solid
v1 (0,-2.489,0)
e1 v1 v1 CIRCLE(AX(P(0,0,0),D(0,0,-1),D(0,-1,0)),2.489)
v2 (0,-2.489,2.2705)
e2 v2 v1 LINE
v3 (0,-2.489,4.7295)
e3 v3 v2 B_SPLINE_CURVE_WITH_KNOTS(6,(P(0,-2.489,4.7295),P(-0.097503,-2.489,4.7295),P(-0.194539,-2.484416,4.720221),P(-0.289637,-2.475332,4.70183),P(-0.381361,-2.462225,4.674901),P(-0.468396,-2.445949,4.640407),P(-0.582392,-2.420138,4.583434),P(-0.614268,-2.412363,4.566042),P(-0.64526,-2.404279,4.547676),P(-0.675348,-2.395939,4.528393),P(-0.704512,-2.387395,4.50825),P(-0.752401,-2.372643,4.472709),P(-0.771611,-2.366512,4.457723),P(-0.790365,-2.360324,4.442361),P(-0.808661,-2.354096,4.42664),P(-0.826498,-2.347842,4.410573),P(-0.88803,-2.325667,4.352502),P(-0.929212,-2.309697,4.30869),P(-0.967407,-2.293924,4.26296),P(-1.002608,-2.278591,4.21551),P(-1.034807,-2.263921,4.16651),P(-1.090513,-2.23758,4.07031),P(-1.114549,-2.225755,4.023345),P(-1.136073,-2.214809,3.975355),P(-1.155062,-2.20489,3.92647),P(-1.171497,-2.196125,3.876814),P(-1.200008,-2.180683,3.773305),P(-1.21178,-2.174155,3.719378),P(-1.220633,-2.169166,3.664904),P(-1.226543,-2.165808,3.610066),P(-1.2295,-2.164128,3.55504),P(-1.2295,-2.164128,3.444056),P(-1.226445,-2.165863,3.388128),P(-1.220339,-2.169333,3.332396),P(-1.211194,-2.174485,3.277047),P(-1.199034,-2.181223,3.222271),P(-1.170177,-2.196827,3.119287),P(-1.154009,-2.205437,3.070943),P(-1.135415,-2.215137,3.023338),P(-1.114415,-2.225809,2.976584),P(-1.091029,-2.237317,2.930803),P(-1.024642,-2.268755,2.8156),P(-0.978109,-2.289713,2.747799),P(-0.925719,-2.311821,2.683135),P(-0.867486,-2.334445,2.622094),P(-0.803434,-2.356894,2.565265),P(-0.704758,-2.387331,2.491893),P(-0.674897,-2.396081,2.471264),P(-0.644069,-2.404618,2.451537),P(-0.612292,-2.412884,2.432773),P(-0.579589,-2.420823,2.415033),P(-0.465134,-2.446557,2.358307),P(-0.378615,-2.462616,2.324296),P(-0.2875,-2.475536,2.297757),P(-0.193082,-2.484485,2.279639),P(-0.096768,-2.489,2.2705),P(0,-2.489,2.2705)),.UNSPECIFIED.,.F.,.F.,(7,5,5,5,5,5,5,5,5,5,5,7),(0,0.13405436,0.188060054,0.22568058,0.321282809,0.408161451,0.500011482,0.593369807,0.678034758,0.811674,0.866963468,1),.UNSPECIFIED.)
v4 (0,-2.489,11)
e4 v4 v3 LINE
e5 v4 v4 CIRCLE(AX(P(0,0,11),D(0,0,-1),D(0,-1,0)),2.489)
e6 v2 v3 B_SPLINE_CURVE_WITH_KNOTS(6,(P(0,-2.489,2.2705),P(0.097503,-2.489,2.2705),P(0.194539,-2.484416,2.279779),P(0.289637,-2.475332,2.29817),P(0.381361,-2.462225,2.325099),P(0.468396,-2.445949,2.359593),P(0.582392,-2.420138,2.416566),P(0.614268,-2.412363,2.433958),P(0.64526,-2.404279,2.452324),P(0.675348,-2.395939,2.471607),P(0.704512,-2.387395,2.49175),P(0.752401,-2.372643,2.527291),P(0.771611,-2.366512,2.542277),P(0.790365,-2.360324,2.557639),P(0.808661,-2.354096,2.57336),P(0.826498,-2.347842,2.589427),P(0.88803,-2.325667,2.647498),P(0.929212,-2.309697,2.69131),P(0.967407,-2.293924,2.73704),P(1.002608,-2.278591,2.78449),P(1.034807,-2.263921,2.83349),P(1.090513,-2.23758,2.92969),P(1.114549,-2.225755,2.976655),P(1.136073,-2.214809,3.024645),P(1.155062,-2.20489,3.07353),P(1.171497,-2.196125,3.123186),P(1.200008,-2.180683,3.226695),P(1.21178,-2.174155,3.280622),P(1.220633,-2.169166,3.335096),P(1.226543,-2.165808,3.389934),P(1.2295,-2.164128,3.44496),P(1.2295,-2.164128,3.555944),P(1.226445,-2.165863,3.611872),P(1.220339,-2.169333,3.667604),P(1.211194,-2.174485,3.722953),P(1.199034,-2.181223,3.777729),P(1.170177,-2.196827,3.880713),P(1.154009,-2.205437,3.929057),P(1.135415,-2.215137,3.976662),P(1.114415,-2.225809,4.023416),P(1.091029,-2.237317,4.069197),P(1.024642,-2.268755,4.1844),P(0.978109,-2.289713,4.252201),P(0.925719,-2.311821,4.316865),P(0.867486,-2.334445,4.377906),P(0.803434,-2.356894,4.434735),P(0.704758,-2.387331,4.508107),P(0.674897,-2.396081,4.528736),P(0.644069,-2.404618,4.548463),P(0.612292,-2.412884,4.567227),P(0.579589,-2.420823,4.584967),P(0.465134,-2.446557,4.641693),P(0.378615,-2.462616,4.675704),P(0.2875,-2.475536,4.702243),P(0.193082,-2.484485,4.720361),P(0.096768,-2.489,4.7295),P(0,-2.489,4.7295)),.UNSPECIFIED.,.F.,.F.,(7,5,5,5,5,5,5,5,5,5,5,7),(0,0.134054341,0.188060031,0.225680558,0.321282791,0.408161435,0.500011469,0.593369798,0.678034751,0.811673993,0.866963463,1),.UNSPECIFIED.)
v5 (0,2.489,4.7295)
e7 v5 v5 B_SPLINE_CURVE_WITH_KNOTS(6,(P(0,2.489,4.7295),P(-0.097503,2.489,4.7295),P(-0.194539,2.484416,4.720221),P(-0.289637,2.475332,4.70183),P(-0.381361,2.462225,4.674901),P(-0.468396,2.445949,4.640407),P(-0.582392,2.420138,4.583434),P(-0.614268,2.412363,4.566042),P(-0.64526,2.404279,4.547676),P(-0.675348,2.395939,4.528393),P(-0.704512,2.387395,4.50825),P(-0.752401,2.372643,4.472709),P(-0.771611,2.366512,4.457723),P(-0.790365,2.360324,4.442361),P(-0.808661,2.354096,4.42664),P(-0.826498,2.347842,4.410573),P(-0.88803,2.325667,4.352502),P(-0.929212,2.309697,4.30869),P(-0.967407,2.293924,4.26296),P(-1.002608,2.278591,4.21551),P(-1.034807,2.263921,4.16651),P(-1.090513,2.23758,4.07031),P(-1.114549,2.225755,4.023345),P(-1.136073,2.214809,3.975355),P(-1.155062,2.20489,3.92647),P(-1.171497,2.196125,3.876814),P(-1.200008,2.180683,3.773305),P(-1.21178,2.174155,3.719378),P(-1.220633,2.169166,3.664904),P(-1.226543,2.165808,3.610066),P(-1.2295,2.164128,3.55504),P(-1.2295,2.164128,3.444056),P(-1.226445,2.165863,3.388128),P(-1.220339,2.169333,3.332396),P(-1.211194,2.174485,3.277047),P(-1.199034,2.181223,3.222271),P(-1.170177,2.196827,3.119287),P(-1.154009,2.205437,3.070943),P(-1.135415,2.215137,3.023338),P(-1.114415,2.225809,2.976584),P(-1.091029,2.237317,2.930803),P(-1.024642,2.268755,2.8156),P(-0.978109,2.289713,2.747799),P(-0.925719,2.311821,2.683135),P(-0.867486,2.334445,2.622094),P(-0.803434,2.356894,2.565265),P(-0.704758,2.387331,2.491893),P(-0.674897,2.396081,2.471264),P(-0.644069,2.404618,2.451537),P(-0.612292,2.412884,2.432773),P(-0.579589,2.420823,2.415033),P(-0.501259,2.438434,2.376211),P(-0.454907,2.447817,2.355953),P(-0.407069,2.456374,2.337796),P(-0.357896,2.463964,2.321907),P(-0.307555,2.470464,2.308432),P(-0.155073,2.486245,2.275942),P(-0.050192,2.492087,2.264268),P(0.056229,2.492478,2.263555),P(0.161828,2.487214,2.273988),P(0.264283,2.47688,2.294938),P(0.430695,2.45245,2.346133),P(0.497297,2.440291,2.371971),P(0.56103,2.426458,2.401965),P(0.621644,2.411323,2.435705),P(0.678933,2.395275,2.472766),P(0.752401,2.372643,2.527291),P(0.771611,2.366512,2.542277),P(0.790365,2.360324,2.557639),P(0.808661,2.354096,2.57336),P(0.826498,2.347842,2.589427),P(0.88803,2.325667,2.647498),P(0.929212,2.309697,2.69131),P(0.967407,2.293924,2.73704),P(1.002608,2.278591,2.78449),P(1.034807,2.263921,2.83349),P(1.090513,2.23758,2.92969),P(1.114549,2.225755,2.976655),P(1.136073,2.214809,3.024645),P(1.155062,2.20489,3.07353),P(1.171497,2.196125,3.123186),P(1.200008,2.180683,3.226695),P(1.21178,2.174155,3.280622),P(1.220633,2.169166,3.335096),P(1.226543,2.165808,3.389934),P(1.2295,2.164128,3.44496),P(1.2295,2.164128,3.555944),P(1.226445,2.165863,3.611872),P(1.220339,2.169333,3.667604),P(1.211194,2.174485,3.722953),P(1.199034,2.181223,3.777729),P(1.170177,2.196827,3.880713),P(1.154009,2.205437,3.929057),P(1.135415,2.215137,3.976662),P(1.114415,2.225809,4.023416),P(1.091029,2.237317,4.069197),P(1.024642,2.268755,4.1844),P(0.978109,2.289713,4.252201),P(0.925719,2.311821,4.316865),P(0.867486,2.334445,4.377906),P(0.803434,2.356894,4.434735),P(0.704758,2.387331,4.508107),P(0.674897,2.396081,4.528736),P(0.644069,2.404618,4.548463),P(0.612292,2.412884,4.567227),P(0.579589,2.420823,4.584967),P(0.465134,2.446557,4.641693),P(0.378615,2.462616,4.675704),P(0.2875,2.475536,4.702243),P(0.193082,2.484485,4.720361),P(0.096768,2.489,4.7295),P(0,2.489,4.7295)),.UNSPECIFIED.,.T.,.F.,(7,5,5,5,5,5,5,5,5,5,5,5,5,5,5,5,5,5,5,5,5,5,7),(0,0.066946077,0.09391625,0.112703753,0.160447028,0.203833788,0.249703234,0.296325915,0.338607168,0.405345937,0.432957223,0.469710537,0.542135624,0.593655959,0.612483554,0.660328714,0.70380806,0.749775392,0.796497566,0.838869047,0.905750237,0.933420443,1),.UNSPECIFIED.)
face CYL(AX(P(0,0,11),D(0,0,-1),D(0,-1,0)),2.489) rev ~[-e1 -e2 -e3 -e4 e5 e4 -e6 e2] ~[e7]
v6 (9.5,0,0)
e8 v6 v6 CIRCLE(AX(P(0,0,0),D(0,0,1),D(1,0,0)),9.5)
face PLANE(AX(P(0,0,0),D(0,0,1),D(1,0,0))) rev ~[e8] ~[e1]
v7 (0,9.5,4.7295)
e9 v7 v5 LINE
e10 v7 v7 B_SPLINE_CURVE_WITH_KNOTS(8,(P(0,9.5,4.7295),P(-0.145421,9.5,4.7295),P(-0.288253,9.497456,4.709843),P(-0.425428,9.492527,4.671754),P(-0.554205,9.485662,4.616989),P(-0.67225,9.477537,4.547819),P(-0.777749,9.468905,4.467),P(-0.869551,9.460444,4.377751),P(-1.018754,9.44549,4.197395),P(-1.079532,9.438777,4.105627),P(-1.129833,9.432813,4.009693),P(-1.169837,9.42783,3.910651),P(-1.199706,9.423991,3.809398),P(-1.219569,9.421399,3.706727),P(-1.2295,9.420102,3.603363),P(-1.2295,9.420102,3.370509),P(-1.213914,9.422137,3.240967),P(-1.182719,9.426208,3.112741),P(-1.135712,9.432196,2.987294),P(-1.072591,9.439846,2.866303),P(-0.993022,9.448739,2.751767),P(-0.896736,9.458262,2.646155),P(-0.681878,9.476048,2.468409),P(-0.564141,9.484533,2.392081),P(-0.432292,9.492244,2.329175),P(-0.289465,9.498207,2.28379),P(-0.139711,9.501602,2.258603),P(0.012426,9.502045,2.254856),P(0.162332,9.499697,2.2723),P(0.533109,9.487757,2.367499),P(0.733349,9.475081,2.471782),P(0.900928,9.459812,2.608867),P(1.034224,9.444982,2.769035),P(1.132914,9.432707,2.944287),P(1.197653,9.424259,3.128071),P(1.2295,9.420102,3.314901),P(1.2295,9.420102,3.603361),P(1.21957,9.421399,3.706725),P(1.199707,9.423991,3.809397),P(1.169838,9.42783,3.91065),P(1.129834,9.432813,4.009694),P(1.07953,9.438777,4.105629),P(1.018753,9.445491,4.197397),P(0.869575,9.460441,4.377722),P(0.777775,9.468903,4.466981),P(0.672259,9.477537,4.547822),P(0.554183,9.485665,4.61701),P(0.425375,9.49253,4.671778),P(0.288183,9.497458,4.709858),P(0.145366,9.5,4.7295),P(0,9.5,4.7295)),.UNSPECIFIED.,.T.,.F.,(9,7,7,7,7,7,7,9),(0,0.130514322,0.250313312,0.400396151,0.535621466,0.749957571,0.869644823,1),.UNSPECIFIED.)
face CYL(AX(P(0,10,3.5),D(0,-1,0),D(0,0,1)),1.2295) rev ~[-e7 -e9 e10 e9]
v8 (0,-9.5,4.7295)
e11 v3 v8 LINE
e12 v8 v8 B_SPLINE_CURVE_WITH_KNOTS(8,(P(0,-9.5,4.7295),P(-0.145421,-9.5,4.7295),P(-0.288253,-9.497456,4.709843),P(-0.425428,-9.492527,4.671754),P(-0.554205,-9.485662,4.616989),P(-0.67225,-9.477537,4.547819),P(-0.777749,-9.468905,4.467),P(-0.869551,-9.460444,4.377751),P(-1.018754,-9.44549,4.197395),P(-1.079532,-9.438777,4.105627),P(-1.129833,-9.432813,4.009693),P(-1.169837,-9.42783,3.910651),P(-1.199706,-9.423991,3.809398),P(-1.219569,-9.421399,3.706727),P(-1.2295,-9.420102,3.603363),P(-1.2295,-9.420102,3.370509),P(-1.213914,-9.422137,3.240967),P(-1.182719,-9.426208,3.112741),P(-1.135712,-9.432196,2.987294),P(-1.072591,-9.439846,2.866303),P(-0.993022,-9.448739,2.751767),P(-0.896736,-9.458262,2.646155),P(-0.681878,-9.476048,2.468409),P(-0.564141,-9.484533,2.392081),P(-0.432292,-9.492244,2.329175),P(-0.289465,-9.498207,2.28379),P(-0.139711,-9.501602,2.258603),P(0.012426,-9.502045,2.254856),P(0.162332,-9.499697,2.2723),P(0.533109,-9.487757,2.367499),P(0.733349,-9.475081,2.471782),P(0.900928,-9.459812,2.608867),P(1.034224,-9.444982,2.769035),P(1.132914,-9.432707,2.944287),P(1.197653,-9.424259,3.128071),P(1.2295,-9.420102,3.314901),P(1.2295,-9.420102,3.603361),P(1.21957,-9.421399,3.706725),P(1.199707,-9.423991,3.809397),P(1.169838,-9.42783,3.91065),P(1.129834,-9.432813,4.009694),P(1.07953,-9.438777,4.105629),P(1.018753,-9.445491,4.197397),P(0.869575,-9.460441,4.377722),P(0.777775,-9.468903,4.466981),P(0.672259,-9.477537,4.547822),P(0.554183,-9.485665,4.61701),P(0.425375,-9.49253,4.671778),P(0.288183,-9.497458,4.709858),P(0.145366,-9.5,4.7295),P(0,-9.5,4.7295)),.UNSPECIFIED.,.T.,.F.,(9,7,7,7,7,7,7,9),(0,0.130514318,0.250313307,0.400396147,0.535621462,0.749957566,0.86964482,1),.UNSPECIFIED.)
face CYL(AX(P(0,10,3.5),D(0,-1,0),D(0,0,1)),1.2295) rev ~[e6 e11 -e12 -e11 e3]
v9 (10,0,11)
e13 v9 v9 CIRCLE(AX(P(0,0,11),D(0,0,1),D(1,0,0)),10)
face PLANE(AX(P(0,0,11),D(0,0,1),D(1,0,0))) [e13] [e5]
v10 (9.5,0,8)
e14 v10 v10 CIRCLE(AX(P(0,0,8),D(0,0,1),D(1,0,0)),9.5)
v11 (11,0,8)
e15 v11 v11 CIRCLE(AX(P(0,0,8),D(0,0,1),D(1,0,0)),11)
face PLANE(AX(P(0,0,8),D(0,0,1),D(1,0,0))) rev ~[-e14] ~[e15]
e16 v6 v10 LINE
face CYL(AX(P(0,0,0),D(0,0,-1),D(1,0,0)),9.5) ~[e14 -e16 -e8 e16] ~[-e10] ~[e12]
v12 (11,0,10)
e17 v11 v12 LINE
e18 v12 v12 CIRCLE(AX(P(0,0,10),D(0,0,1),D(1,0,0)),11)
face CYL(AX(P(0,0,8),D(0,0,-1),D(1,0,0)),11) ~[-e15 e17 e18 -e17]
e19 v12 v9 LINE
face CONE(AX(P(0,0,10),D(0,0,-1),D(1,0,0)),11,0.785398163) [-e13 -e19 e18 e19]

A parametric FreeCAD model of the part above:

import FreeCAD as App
import Part
import Sketcher
from FreeCAD import Vector
Q = App.Units.Quantity


def edges_at(feature, points):
    """Names of the edges that pass closest to the given points."""
    edges = feature.Shape.Edges
    near = lambda p: min(range(len(edges)), key=lambda i: edges[i].distToShape(Part.Vertex(*p))[0])
    return sorted({f"Edge{near(p) + 1}" for p in points})

doc = App.newDocument("Part")
body = doc.addObject("PartDesign::Body", "Body")

# Sketch on XY plane
sketch1 = body.newObject("Sketcher::SketchObject", "Sketch")
sketch1.AttachmentSupport = (doc.getObject("XY_Plane"), [""])
sketch1.MapMode = "FlatFace"
sketch1.addGeometry(Part.Circle(Vector(0, 0, 0), Vector(0, 0, 1), 10), False)
sketch1.addConstraint(Sketcher.Constraint("Coincident", 0, 3, -1, 1))
sketch1.addConstraint(Sketcher.Constraint("Diameter", 0, Q("19 mm")))
pad1 = body.newObject("PartDesign::Pad", "Pad")
pad1.Profile = sketch1
pad1.Length = 8

# Sketch on XY plane
sketch2 = body.newObject("Sketcher::SketchObject", "Sketch001")
sketch2.AttachmentSupport = (doc.getObject("XY_Plane"), [""])
sketch2.MapMode = "FlatFace"
sketch2.AttachmentOffset = App.Placement(Vector(0, 0, 8), App.Rotation())
sketch2.addGeometry(Part.Circle(Vector(0, 0, 0), Vector(0, 0, 1), 11), False)
sketch2.addConstraint(Sketcher.Constraint("Coincident", 0, 3, -1, 1))
sketch2.addConstraint(Sketcher.Constraint("Diameter", 0, Q("22 mm")))
pad2 = body.newObject("PartDesign::Pad", "Pad001")
pad2.Profile = sketch2
pad2.Length = 3
doc.recompute()

chamfer = body.newObject("PartDesign::Chamfer", "Chamfer")
chamfer.Base = (pad2, edges_at(pad2, [(-11, 0, 11)]))
chamfer.Size = 1

# Sketch on XY plane
sketch3 = body.newObject("Sketcher::SketchObject", "Sketch002")
sketch3.AttachmentSupport = (doc.getObject("XY_Plane"), [""])
sketch3.MapMode = "FlatFace"
sketch3.AttachmentOffset = App.Placement(Vector(0, 0, 11), App.Rotation())
sketch3.addGeometry(Part.Circle(Vector(0, 0, 0), Vector(0, 0, 1), 2.5), False)
sketch3.addConstraint(Sketcher.Constraint("Coincident", 0, 3, -1, 1))
sketch3.addConstraint(Sketcher.Constraint("Diameter", 0, Q("4.978 mm")))
doc.recompute()
hole = body.newObject("PartDesign::Hole", "Hole")
hole.Profile = sketch3
hole.ThreadType = "None"
hole.Diameter = 4.978
hole.DepthType = "ThroughAll"

# Sketch on XZ plane
sketch4 = body.newObject("Sketcher::SketchObject", "Sketch003")
sketch4.AttachmentSupport = (doc.getObject("XZ_Plane"), [""])
sketch4.MapMode = "FlatFace"
sketch4.AttachmentOffset = App.Placement(Vector(0, 0, -10), App.Rotation())
sketch4.addGeometry(Part.Circle(Vector(0, 3.5, 0), Vector(0, 0, 1), 1.2), False)
sketch4.addConstraint(Sketcher.Constraint("PointOnObject", 0, 3, -2))
sketch4.addConstraint(Sketcher.Constraint("Diameter", 0, Q("2.459 mm")))
sketch4.addConstraint(Sketcher.Constraint("DistanceY", -1, 1, 0, 3, Q("3.5 mm")))
doc.recompute()
hole2 = body.newObject("PartDesign::Hole", "Hole001")
hole2.Profile = sketch4
hole2.ThreadType = "None"
hole2.Diameter = 2.459
hole2.DepthType = "ThroughAll"
hole2.Reversed = True

doc.recompute()
